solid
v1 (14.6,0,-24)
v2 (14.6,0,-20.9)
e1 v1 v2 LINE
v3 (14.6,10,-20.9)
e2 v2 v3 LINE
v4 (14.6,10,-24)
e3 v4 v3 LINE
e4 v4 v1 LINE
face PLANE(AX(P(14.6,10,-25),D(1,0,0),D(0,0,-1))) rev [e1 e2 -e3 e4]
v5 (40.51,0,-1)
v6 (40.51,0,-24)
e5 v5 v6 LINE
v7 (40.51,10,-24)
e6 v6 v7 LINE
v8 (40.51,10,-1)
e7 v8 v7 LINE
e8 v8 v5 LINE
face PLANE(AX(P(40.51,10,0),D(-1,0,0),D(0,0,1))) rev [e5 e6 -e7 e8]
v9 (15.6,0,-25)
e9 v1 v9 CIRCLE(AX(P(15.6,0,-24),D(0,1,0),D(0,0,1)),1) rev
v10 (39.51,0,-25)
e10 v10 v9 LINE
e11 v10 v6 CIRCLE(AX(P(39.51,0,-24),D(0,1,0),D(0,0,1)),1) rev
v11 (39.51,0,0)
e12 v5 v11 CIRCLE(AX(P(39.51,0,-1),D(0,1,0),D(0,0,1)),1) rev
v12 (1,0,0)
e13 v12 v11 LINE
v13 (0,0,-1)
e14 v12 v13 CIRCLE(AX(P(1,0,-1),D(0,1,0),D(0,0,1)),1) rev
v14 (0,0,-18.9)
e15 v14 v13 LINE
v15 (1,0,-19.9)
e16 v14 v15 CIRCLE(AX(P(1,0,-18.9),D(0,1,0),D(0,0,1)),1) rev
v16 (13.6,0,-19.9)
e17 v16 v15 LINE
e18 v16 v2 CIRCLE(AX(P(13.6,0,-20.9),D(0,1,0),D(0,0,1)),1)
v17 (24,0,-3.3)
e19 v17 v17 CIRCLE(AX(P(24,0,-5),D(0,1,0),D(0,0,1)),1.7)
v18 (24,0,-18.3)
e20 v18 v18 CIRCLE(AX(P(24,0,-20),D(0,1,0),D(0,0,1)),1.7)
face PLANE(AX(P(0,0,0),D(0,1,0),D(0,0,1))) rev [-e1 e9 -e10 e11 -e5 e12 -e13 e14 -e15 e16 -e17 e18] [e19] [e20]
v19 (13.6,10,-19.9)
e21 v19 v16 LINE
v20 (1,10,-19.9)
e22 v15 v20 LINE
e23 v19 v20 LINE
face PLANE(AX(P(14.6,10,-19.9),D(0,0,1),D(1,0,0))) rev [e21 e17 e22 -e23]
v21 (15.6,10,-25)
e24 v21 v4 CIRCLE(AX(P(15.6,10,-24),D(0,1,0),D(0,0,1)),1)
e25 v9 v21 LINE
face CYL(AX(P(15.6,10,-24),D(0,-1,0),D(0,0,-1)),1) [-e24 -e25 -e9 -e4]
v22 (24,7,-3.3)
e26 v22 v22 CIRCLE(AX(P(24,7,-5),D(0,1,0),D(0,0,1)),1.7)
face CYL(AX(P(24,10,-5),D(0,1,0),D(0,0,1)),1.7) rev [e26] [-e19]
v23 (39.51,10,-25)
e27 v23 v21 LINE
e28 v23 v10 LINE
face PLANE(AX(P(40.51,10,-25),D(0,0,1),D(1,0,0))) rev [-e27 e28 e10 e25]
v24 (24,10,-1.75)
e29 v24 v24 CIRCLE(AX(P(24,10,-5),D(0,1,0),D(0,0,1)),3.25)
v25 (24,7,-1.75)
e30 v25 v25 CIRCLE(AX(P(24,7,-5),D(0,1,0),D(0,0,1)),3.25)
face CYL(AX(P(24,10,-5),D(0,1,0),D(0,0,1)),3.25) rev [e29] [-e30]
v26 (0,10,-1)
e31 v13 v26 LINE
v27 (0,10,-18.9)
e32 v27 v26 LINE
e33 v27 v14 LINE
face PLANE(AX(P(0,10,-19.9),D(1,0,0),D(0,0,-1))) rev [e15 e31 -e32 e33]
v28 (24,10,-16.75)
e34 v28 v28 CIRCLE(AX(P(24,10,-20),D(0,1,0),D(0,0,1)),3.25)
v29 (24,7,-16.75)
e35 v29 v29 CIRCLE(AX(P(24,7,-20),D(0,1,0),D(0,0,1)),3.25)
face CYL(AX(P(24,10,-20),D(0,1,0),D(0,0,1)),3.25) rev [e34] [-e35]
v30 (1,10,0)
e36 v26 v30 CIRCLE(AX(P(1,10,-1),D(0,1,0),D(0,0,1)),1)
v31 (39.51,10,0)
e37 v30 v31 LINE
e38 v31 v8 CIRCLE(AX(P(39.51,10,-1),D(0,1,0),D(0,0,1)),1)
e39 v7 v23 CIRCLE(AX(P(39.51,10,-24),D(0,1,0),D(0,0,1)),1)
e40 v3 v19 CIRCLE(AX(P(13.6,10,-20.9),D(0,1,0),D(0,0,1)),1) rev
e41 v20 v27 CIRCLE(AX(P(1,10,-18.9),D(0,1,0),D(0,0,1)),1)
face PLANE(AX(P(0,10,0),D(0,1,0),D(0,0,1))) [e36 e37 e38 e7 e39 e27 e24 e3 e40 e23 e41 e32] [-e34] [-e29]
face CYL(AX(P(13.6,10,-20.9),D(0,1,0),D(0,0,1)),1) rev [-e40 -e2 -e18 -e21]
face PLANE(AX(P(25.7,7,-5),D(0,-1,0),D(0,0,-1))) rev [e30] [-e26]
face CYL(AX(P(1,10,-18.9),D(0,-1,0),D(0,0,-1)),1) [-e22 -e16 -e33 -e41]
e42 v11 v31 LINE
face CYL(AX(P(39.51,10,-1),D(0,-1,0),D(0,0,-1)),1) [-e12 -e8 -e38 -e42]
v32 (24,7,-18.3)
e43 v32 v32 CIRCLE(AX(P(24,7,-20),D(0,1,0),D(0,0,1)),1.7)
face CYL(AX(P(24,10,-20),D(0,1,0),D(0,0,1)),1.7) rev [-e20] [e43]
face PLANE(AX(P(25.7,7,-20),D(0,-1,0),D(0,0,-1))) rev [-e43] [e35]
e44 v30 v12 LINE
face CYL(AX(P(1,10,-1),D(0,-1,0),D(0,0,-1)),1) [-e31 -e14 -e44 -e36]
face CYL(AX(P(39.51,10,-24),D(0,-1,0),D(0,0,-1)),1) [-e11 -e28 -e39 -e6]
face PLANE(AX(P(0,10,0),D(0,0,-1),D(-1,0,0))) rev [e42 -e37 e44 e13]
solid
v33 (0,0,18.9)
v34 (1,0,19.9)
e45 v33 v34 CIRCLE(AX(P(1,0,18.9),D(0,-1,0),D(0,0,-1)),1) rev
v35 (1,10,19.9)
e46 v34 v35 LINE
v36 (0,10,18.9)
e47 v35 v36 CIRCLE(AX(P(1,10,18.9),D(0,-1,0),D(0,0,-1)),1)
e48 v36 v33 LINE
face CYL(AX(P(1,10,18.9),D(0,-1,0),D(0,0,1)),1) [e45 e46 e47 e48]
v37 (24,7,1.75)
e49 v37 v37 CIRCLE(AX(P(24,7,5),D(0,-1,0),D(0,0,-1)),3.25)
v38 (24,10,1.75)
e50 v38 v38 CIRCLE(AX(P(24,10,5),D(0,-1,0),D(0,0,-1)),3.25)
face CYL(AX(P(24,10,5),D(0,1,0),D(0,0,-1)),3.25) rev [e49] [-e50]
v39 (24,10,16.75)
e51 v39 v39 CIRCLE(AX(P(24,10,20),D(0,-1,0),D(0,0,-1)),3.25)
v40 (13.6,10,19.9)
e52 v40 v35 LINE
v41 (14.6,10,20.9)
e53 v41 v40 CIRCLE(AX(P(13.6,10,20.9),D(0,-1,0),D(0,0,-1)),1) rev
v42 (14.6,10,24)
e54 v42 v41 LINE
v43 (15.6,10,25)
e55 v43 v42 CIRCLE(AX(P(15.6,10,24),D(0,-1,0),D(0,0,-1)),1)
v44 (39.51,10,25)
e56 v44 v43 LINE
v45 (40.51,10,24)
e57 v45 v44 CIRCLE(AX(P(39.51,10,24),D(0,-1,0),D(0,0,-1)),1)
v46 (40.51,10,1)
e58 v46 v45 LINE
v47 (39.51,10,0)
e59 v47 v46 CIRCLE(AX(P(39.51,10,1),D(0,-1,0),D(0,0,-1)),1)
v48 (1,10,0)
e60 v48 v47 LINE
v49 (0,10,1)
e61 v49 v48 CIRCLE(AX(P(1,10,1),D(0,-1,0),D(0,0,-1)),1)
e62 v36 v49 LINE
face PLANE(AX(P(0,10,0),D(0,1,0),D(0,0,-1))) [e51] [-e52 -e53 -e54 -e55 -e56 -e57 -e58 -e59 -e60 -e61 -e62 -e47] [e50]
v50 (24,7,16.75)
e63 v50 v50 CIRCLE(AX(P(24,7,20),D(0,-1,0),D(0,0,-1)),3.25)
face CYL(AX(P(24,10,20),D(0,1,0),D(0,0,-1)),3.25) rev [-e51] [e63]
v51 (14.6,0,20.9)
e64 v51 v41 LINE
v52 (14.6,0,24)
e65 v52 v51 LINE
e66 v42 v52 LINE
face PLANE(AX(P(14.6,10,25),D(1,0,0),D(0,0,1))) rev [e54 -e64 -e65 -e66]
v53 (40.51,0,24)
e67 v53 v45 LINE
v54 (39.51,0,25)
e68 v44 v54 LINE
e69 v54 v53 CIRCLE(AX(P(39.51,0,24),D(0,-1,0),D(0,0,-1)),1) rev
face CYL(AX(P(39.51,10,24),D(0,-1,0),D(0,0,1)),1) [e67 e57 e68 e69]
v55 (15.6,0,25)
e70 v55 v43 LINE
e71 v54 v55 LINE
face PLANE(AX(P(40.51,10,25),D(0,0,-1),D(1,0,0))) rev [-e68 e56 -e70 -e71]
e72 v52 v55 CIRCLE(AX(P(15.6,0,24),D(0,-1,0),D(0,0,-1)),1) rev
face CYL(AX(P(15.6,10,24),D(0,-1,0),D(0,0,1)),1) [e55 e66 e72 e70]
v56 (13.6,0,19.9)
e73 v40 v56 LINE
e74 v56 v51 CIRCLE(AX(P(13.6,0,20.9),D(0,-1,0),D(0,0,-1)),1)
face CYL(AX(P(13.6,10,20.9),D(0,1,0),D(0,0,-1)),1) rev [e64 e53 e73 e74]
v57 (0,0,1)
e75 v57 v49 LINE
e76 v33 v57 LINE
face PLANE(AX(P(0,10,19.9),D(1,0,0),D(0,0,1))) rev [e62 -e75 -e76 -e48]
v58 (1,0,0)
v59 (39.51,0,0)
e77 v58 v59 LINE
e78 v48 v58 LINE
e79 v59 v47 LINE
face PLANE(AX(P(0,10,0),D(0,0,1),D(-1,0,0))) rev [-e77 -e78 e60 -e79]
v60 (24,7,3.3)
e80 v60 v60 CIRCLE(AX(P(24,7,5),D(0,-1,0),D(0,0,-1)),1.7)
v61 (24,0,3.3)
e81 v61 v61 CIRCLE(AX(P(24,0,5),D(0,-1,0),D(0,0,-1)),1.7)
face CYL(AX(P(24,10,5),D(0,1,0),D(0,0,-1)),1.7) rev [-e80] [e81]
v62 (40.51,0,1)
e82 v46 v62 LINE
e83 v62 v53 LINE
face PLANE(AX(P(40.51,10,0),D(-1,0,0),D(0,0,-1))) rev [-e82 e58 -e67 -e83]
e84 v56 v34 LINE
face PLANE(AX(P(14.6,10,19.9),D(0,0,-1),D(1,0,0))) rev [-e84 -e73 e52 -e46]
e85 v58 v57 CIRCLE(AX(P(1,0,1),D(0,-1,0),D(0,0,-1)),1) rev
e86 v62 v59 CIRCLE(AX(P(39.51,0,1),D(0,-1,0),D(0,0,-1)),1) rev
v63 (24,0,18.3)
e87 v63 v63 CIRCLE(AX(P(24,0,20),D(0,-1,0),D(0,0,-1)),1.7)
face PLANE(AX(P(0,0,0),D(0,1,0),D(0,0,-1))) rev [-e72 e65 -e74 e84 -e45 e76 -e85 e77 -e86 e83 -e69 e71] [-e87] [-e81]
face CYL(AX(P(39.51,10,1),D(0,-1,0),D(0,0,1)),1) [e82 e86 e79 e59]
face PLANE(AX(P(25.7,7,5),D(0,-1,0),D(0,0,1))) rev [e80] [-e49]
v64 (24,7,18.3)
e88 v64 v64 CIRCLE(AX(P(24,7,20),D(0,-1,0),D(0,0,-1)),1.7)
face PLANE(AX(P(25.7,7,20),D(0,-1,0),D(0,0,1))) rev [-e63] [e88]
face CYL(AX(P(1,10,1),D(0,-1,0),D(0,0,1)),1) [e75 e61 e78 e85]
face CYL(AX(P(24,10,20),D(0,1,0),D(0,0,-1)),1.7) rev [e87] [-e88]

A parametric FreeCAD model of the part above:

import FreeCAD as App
import Part
import Sketcher
from FreeCAD import Vector
Q = App.Units.Quantity


def edges_at(feature, points):
    """Names of the edges that pass closest to the given points."""
    edges = feature.Shape.Edges
    near = lambda p: min(range(len(edges)), key=lambda i: edges[i].distToShape(Part.Vertex(*p))[0])
    return sorted({f"Edge{near(p) + 1}" for p in points})


def add_polygon(sketch, points):
    """Adds a closed chain of lines whose ends are joined by coincident constraints."""
    first, n = sketch.GeometryCount, len(points)
    for a, b in zip(points, points[1:] + points[:1]):
        sketch.addGeometry(Part.LineSegment(App.Vector(*a, 0), App.Vector(*b, 0)), False)
    for i in range(n):
        sketch.addConstraint(Sketcher.Constraint("Coincident", first + i, 2, first + (i + 1) % n, 1))

doc = App.newDocument("Part")
body = doc.addObject("PartDesign::Body", "Body")

sketch1 = body.newObject("Sketcher::SketchObject", "Sketch")
sketch1.AttachmentSupport = (doc.getObject("XZ_Plane"), [""])
sketch1.MapMode = "FlatFace"
add_polygon(sketch1, [(0, 0), (40.51, 0), (40.51, -25), (14.6, -25), (14.6, -19.9), (0, -19.9)])
sketch1.addConstraint(Sketcher.Constraint("Horizontal", 0))
sketch1.addConstraint(Sketcher.Constraint("Vertical", 1))
sketch1.addConstraint(Sketcher.Constraint("Horizontal", 2))
sketch1.addConstraint(Sketcher.Constraint("Vertical", 3))
sketch1.addConstraint(Sketcher.Constraint("Horizontal", 4))
sketch1.addConstraint(Sketcher.Constraint("Vertical", 5))
sketch1.addConstraint(Sketcher.Constraint("Coincident", 5, 2, -1, 1))
sketch1.addConstraint(Sketcher.Constraint("DistanceY", 1, 2, 1, 1, Q("25 mm")))
sketch1.addConstraint(Sketcher.Constraint("DistanceX", 4, 2, 4, 1, Q("14.6 mm")))
sketch1.addConstraint(Sketcher.Constraint("DistanceY", 3, 1, 3, 2, Q("5.1 mm")))
sketch1.addConstraint(Sketcher.Constraint("DistanceX", 0, 1, 0, 2, Q("40.51 mm")))
pad1 = body.newObject("PartDesign::Pad", "Pad")
pad1.Profile = sketch1
pad1.Length = 10
pad1.Reversed = True
doc.recompute()

fillet = body.newObject("PartDesign::Fillet", "Fillet")
fillet.Base = (pad1, edges_at(pad1, [
    (0, 5, -19.9),
    (14.6, 5, -19.9),
    (14.6, 5, -25),
    (40.51, 5, -25),
    (40.51, 5, 0),
    (0, 5, 0),
]))
fillet.Radius = 1

sketch2 = body.newObject("Sketcher::SketchObject", "Sketch001")
sketch2.AttachmentSupport = (doc.getObject("XZ_Plane"), [""])
sketch2.MapMode = "FlatFace"
sketch2.AttachmentOffset = App.Placement(Vector(0, 0, -10), App.Rotation())
sketch2.addGeometry(Part.Circle(Vector(24, -20, 0), Vector(0, 0, 1), 1.7), False)
sketch2.addGeometry(Part.Circle(Vector(24, -5, 0), Vector(0, 0, 1), 1.7), False)
sketch2.addConstraint(Sketcher.Constraint("Equal", 0, 1))
sketch2.addConstraint(Sketcher.Constraint("Vertical", 0, 3, 1, 3))
sketch2.addConstraint(Sketcher.Constraint("Diameter", 0, Q("3.4 mm")))
sketch2.addConstraint(Sketcher.Constraint("DistanceX", -1, 1, 0, 3, Q("24 mm")))
sketch2.addConstraint(Sketcher.Constraint("DistanceY", 0, 3, -1, 1, Q("20 mm")))
sketch2.addConstraint(Sketcher.Constraint("DistanceY", 1, 3, -1, 1, Q("5 mm")))
doc.recompute()
hole = body.newObject("PartDesign::Hole", "Hole")
hole.Profile = sketch2
hole.ThreadType = "None"
hole.Diameter = 3.4
hole.DepthType = "Dimension"
hole.Depth = 10
hole.DrillPoint = "Flat"
hole.HoleCutType = "Counterbore"
hole.HoleCutDiameter = 6.5
hole.HoleCutDepth = 3
hole.Reversed = True
body2 = doc.addObject("PartDesign::Body", "Body001")
doc.recompute()

mirroring = doc.addObject("Part::Mirroring", "Mirroring")
mirroring.Source = body
mirroring.Base = Vector(0, 10, 0)
mirroring.Normal = Vector(0, 0, -1)
body2.BaseFeature = mirroring
doc.recompute()
mirroring.Visibility = False

doc.recompute()
